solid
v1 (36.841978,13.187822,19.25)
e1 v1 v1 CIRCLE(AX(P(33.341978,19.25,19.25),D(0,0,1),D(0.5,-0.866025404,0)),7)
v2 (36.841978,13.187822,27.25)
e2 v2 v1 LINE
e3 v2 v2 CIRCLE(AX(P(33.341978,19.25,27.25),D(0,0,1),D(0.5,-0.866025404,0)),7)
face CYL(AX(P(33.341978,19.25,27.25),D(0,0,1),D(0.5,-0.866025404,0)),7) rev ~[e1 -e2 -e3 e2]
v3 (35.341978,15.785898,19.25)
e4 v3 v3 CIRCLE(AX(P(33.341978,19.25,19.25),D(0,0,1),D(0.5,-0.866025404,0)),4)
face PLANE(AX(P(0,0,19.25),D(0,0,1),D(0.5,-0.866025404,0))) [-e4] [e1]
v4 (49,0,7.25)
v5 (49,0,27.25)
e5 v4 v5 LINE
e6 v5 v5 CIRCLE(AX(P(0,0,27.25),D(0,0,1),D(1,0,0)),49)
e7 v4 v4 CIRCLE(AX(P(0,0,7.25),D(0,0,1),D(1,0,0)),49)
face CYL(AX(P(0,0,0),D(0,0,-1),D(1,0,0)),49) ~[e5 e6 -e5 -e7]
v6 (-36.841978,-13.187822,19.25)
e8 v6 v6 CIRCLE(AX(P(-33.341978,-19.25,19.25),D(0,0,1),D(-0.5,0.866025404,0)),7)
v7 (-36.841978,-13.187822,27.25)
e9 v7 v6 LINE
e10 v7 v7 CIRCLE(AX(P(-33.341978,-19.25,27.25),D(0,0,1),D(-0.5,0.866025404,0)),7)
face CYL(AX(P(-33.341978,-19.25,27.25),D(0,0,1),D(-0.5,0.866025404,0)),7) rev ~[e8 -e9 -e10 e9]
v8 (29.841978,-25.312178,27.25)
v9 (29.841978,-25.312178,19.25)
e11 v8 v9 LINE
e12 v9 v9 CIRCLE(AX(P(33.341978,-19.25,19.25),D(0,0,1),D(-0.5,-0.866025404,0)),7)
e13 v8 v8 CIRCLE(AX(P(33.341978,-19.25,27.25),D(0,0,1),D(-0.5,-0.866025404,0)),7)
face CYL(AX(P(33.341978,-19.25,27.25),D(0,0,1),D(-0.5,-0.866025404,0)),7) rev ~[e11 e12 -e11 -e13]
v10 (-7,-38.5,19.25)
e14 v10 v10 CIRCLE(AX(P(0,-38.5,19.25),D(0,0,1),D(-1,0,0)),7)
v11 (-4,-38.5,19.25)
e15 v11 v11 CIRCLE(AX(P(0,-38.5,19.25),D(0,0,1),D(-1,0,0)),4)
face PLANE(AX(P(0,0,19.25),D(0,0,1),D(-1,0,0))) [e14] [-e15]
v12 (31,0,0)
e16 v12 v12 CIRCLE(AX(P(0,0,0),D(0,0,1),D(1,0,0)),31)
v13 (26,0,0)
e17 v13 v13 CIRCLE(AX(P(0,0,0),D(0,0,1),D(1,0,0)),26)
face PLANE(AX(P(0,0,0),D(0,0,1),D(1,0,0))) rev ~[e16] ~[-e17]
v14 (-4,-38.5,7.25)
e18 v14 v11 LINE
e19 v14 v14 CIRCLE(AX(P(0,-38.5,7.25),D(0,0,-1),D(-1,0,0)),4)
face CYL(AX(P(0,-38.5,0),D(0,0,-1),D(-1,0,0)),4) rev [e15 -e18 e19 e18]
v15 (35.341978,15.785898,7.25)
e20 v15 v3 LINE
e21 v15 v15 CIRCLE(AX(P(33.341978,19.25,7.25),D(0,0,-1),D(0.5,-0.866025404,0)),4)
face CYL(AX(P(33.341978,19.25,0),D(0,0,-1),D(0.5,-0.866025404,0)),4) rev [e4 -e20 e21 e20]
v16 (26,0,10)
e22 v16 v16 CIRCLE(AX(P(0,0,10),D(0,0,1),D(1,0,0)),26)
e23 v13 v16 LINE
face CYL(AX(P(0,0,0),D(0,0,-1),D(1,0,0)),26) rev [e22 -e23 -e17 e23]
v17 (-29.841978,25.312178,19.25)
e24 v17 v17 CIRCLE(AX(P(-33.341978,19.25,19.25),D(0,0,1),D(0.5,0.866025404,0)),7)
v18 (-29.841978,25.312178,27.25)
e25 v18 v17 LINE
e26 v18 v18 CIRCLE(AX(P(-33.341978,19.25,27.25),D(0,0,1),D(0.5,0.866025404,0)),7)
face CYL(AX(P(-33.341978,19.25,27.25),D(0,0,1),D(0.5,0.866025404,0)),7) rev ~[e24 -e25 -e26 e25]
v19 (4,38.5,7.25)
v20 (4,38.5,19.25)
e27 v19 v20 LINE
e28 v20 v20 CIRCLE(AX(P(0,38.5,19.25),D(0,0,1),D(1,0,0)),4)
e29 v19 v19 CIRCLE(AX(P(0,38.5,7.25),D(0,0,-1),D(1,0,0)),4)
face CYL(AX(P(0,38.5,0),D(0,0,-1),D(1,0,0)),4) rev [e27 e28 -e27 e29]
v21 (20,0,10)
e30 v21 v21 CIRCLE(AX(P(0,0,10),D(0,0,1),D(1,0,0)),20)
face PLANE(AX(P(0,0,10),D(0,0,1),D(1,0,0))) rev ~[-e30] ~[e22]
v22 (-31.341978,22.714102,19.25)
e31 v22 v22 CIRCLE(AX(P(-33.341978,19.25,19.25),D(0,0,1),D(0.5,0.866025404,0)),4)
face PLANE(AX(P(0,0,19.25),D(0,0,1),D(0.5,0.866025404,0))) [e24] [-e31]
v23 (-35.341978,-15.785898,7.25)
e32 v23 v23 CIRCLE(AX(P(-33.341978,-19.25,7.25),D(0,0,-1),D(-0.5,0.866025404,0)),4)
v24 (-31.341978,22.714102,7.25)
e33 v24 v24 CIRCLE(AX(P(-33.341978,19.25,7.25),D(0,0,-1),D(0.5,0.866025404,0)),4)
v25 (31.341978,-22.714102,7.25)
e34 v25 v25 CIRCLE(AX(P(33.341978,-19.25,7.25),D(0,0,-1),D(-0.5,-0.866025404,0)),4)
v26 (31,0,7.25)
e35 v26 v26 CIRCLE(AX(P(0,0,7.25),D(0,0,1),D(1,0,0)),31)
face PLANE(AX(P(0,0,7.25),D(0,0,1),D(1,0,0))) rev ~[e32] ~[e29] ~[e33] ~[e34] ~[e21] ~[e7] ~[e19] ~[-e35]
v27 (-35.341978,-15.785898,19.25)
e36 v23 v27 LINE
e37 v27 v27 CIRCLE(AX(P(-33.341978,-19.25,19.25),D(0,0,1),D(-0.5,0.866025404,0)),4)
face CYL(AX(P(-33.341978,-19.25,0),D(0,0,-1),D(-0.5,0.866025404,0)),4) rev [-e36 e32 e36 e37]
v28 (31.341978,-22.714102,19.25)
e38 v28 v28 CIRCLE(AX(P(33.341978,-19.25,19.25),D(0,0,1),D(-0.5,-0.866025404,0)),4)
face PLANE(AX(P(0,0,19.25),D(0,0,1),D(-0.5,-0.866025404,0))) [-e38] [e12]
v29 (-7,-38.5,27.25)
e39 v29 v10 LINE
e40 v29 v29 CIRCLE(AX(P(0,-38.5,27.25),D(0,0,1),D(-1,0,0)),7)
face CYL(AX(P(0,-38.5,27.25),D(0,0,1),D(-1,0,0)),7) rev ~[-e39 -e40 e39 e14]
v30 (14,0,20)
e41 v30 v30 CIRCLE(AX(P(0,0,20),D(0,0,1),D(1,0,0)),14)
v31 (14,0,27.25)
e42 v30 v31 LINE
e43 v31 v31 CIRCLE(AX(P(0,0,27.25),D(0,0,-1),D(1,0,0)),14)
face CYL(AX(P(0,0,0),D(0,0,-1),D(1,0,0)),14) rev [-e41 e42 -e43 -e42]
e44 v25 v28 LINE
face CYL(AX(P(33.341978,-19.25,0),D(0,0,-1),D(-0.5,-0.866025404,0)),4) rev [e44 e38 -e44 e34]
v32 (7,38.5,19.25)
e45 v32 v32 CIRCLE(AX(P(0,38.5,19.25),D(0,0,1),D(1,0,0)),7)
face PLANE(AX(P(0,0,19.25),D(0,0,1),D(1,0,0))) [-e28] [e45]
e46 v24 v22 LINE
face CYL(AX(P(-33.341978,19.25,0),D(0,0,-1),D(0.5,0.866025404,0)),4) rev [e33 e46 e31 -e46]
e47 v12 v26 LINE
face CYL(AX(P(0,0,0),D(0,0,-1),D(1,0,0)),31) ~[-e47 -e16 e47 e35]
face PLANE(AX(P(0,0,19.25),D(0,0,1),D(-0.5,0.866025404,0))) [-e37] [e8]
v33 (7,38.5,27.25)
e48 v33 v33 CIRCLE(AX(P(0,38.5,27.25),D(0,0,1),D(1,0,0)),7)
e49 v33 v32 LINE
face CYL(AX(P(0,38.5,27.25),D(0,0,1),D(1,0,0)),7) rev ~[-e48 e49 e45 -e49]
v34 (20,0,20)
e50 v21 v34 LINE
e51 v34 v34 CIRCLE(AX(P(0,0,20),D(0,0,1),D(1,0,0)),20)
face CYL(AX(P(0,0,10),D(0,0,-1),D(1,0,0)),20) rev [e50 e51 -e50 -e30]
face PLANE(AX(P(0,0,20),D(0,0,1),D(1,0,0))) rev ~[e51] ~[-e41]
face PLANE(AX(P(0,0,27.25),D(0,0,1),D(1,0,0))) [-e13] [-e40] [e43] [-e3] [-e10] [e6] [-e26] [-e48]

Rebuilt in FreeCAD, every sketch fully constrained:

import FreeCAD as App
import Part
import Sketcher

doc = App.newDocument("Part")
body = doc.addObject("PartDesign::Body", "Body")

sketch1 = body.newObject("Sketcher::SketchObject", "Sketch")
sketch1.AttachmentSupport = (doc.getObject("XY_Plane"), [""])
sketch1.MapMode = "FlatFace"
sketch1.addGeometry(Part.Circle(App.Vector(0, 0, 0), App.Vector(0, 0, 1), 49), False)
sketch1.addConstraint([
    Sketcher.Constraint("Coincident", 0, 3, -1, 1),
    Sketcher.Constraint("Diameter", 0, 98.0),
])
pad1 = body.newObject("PartDesign::Pad", "Pad")
pad1.Profile = sketch1
pad1.Length = 27.25

sketch2 = body.newObject("Sketcher::SketchObject", "Sketch001")
sketch2.AttachmentSupport = (doc.getObject("XY_Plane"), [""])
sketch2.MapMode = "FlatFace"
sketch2.addGeometry(Part.Circle(App.Vector(0, 0, 0), App.Vector(0, 0, 1), 14), False)
sketch2.addConstraint([
    Sketcher.Constraint("Coincident", 0, 3, -1, 1),
    Sketcher.Constraint("Diameter", 0, 28.0),
])
pocket1 = body.newObject("PartDesign::Pocket", "Pocket")
pocket1.Profile = sketch2
pocket1.Type = "ThroughAll"
pocket1.Reversed = True

sketch3 = body.newObject("Sketcher::SketchObject", "Sketch002")
sketch3.AttachmentSupport = (doc.getObject("XY_Plane"), [""])
sketch3.MapMode = "FlatFace"
sketch3.addGeometry([
    Part.Circle(App.Vector(0, 0, 0), App.Vector(0, 0, 1), 49),
    Part.Circle(App.Vector(0, 0, 0), App.Vector(0, 0, 1), 31),
], False)
sketch3.addConstraint([
    Sketcher.Constraint("Coincident", 0, 3, -1, 1),
    Sketcher.Constraint("Coincident", 1, 3, -1, 1),
    Sketcher.Constraint("Diameter", 0, 98.0),
    Sketcher.Constraint("Diameter", 1, 62.0),
])
pocket2 = body.newObject("PartDesign::Pocket", "Pocket001")
pocket2.Profile = sketch3
pocket2.Length = 7.25
pocket2.Reversed = True

sketch4 = body.newObject("Sketcher::SketchObject", "Sketch003")
sketch4.AttachmentSupport = (doc.getObject("XY_Plane"), [""])
sketch4.MapMode = "FlatFace"
sketch4.addGeometry(Part.Circle(App.Vector(0, 38.5, 0), App.Vector(0, 0, 1), 4), False)
sketch4.addConstraint([
    Sketcher.Constraint("PointOnObject", 0, 3, -2),
    Sketcher.Constraint("Diameter", 0, 8.0),
    Sketcher.Constraint("DistanceY", -1, 1, 0, 3, 38.5),
])
pocket3 = body.newObject("PartDesign::Pocket", "Pocket002")
pocket3.Profile = sketch4
pocket3.Type = "ThroughAll"
pocket3.Reversed = True

sketch5 = body.newObject("Sketcher::SketchObject", "Sketch004")
sketch5.AttachmentSupport = (doc.getObject("XY_Plane"), [""])
sketch5.MapMode = "FlatFace"
sketch5.AttachmentOffset = App.Placement(App.Vector(0, 0, 27.25), App.Rotation())
sketch5.addGeometry([
    Part.Circle(App.Vector(0, 38.5, 0), App.Vector(0, 0, 1), 7),
    Part.Circle(App.Vector(0, 38.5, 0), App.Vector(0, 0, 1), 4),
], False)
sketch5.addConstraint([
    Sketcher.Constraint("Coincident", 1, 3, 0, 3),
    Sketcher.Constraint("PointOnObject", 0, 3, -2),
    Sketcher.Constraint("Diameter", 0, 14.0),
    Sketcher.Constraint("Diameter", 1, 8.0),
    Sketcher.Constraint("DistanceY", -1, 1, 0, 3, 38.5),
])
pocket4 = body.newObject("PartDesign::Pocket", "Pocket003")
pocket4.Profile = sketch5
pocket4.Length = 8
doc.recompute()

polarpattern = body.newObject("PartDesign::PolarPattern", "PolarPattern")
polarpattern.Originals = [pocket4, pocket3]
polarpattern.Axis = (doc.getObject("Z_Axis"), [""])
polarpattern.Angle = 360
polarpattern.Occurrences = 6
body.Tip = polarpattern

sketch6 = body.newObject("Sketcher::SketchObject", "Sketch005")
sketch6.AttachmentSupport = (doc.getObject("XY_Plane"), [""])
sketch6.MapMode = "FlatFace"
sketch6.addGeometry(Part.Circle(App.Vector(0, 0, 0), App.Vector(0, 0, 1), 26), False)
sketch6.addConstraint([
    Sketcher.Constraint("Coincident", 0, 3, -1, 1),
    Sketcher.Constraint("Diameter", 0, 52.0),
])
pocket5 = body.newObject("PartDesign::Pocket", "Pocket004")
pocket5.Profile = sketch6
pocket5.Length = 10
pocket5.Reversed = True

sketch7 = body.newObject("Sketcher::SketchObject", "Sketch006")
sketch7.AttachmentSupport = (doc.getObject("XY_Plane"), [""])
sketch7.MapMode = "FlatFace"
sketch7.AttachmentOffset = App.Placement(App.Vector(0, 0, 10), App.Rotation())
sketch7.addGeometry([
    Part.Circle(App.Vector(0, 0, 0), App.Vector(0, 0, 1), 20),
    Part.Circle(App.Vector(0, 0, 0), App.Vector(0, 0, 1), 14),
], False)
sketch7.addConstraint([
    Sketcher.Constraint("Coincident", 0, 3, -1, 1),
    Sketcher.Constraint("Coincident", 1, 3, -1, 1),
    Sketcher.Constraint("Diameter", 0, 40.0),
    Sketcher.Constraint("Diameter", 1, 28.0),
])
pocket6 = body.newObject("PartDesign::Pocket", "Pocket005")
pocket6.Profile = sketch7
pocket6.Length = 10
pocket6.Reversed = True

doc.recompute()
